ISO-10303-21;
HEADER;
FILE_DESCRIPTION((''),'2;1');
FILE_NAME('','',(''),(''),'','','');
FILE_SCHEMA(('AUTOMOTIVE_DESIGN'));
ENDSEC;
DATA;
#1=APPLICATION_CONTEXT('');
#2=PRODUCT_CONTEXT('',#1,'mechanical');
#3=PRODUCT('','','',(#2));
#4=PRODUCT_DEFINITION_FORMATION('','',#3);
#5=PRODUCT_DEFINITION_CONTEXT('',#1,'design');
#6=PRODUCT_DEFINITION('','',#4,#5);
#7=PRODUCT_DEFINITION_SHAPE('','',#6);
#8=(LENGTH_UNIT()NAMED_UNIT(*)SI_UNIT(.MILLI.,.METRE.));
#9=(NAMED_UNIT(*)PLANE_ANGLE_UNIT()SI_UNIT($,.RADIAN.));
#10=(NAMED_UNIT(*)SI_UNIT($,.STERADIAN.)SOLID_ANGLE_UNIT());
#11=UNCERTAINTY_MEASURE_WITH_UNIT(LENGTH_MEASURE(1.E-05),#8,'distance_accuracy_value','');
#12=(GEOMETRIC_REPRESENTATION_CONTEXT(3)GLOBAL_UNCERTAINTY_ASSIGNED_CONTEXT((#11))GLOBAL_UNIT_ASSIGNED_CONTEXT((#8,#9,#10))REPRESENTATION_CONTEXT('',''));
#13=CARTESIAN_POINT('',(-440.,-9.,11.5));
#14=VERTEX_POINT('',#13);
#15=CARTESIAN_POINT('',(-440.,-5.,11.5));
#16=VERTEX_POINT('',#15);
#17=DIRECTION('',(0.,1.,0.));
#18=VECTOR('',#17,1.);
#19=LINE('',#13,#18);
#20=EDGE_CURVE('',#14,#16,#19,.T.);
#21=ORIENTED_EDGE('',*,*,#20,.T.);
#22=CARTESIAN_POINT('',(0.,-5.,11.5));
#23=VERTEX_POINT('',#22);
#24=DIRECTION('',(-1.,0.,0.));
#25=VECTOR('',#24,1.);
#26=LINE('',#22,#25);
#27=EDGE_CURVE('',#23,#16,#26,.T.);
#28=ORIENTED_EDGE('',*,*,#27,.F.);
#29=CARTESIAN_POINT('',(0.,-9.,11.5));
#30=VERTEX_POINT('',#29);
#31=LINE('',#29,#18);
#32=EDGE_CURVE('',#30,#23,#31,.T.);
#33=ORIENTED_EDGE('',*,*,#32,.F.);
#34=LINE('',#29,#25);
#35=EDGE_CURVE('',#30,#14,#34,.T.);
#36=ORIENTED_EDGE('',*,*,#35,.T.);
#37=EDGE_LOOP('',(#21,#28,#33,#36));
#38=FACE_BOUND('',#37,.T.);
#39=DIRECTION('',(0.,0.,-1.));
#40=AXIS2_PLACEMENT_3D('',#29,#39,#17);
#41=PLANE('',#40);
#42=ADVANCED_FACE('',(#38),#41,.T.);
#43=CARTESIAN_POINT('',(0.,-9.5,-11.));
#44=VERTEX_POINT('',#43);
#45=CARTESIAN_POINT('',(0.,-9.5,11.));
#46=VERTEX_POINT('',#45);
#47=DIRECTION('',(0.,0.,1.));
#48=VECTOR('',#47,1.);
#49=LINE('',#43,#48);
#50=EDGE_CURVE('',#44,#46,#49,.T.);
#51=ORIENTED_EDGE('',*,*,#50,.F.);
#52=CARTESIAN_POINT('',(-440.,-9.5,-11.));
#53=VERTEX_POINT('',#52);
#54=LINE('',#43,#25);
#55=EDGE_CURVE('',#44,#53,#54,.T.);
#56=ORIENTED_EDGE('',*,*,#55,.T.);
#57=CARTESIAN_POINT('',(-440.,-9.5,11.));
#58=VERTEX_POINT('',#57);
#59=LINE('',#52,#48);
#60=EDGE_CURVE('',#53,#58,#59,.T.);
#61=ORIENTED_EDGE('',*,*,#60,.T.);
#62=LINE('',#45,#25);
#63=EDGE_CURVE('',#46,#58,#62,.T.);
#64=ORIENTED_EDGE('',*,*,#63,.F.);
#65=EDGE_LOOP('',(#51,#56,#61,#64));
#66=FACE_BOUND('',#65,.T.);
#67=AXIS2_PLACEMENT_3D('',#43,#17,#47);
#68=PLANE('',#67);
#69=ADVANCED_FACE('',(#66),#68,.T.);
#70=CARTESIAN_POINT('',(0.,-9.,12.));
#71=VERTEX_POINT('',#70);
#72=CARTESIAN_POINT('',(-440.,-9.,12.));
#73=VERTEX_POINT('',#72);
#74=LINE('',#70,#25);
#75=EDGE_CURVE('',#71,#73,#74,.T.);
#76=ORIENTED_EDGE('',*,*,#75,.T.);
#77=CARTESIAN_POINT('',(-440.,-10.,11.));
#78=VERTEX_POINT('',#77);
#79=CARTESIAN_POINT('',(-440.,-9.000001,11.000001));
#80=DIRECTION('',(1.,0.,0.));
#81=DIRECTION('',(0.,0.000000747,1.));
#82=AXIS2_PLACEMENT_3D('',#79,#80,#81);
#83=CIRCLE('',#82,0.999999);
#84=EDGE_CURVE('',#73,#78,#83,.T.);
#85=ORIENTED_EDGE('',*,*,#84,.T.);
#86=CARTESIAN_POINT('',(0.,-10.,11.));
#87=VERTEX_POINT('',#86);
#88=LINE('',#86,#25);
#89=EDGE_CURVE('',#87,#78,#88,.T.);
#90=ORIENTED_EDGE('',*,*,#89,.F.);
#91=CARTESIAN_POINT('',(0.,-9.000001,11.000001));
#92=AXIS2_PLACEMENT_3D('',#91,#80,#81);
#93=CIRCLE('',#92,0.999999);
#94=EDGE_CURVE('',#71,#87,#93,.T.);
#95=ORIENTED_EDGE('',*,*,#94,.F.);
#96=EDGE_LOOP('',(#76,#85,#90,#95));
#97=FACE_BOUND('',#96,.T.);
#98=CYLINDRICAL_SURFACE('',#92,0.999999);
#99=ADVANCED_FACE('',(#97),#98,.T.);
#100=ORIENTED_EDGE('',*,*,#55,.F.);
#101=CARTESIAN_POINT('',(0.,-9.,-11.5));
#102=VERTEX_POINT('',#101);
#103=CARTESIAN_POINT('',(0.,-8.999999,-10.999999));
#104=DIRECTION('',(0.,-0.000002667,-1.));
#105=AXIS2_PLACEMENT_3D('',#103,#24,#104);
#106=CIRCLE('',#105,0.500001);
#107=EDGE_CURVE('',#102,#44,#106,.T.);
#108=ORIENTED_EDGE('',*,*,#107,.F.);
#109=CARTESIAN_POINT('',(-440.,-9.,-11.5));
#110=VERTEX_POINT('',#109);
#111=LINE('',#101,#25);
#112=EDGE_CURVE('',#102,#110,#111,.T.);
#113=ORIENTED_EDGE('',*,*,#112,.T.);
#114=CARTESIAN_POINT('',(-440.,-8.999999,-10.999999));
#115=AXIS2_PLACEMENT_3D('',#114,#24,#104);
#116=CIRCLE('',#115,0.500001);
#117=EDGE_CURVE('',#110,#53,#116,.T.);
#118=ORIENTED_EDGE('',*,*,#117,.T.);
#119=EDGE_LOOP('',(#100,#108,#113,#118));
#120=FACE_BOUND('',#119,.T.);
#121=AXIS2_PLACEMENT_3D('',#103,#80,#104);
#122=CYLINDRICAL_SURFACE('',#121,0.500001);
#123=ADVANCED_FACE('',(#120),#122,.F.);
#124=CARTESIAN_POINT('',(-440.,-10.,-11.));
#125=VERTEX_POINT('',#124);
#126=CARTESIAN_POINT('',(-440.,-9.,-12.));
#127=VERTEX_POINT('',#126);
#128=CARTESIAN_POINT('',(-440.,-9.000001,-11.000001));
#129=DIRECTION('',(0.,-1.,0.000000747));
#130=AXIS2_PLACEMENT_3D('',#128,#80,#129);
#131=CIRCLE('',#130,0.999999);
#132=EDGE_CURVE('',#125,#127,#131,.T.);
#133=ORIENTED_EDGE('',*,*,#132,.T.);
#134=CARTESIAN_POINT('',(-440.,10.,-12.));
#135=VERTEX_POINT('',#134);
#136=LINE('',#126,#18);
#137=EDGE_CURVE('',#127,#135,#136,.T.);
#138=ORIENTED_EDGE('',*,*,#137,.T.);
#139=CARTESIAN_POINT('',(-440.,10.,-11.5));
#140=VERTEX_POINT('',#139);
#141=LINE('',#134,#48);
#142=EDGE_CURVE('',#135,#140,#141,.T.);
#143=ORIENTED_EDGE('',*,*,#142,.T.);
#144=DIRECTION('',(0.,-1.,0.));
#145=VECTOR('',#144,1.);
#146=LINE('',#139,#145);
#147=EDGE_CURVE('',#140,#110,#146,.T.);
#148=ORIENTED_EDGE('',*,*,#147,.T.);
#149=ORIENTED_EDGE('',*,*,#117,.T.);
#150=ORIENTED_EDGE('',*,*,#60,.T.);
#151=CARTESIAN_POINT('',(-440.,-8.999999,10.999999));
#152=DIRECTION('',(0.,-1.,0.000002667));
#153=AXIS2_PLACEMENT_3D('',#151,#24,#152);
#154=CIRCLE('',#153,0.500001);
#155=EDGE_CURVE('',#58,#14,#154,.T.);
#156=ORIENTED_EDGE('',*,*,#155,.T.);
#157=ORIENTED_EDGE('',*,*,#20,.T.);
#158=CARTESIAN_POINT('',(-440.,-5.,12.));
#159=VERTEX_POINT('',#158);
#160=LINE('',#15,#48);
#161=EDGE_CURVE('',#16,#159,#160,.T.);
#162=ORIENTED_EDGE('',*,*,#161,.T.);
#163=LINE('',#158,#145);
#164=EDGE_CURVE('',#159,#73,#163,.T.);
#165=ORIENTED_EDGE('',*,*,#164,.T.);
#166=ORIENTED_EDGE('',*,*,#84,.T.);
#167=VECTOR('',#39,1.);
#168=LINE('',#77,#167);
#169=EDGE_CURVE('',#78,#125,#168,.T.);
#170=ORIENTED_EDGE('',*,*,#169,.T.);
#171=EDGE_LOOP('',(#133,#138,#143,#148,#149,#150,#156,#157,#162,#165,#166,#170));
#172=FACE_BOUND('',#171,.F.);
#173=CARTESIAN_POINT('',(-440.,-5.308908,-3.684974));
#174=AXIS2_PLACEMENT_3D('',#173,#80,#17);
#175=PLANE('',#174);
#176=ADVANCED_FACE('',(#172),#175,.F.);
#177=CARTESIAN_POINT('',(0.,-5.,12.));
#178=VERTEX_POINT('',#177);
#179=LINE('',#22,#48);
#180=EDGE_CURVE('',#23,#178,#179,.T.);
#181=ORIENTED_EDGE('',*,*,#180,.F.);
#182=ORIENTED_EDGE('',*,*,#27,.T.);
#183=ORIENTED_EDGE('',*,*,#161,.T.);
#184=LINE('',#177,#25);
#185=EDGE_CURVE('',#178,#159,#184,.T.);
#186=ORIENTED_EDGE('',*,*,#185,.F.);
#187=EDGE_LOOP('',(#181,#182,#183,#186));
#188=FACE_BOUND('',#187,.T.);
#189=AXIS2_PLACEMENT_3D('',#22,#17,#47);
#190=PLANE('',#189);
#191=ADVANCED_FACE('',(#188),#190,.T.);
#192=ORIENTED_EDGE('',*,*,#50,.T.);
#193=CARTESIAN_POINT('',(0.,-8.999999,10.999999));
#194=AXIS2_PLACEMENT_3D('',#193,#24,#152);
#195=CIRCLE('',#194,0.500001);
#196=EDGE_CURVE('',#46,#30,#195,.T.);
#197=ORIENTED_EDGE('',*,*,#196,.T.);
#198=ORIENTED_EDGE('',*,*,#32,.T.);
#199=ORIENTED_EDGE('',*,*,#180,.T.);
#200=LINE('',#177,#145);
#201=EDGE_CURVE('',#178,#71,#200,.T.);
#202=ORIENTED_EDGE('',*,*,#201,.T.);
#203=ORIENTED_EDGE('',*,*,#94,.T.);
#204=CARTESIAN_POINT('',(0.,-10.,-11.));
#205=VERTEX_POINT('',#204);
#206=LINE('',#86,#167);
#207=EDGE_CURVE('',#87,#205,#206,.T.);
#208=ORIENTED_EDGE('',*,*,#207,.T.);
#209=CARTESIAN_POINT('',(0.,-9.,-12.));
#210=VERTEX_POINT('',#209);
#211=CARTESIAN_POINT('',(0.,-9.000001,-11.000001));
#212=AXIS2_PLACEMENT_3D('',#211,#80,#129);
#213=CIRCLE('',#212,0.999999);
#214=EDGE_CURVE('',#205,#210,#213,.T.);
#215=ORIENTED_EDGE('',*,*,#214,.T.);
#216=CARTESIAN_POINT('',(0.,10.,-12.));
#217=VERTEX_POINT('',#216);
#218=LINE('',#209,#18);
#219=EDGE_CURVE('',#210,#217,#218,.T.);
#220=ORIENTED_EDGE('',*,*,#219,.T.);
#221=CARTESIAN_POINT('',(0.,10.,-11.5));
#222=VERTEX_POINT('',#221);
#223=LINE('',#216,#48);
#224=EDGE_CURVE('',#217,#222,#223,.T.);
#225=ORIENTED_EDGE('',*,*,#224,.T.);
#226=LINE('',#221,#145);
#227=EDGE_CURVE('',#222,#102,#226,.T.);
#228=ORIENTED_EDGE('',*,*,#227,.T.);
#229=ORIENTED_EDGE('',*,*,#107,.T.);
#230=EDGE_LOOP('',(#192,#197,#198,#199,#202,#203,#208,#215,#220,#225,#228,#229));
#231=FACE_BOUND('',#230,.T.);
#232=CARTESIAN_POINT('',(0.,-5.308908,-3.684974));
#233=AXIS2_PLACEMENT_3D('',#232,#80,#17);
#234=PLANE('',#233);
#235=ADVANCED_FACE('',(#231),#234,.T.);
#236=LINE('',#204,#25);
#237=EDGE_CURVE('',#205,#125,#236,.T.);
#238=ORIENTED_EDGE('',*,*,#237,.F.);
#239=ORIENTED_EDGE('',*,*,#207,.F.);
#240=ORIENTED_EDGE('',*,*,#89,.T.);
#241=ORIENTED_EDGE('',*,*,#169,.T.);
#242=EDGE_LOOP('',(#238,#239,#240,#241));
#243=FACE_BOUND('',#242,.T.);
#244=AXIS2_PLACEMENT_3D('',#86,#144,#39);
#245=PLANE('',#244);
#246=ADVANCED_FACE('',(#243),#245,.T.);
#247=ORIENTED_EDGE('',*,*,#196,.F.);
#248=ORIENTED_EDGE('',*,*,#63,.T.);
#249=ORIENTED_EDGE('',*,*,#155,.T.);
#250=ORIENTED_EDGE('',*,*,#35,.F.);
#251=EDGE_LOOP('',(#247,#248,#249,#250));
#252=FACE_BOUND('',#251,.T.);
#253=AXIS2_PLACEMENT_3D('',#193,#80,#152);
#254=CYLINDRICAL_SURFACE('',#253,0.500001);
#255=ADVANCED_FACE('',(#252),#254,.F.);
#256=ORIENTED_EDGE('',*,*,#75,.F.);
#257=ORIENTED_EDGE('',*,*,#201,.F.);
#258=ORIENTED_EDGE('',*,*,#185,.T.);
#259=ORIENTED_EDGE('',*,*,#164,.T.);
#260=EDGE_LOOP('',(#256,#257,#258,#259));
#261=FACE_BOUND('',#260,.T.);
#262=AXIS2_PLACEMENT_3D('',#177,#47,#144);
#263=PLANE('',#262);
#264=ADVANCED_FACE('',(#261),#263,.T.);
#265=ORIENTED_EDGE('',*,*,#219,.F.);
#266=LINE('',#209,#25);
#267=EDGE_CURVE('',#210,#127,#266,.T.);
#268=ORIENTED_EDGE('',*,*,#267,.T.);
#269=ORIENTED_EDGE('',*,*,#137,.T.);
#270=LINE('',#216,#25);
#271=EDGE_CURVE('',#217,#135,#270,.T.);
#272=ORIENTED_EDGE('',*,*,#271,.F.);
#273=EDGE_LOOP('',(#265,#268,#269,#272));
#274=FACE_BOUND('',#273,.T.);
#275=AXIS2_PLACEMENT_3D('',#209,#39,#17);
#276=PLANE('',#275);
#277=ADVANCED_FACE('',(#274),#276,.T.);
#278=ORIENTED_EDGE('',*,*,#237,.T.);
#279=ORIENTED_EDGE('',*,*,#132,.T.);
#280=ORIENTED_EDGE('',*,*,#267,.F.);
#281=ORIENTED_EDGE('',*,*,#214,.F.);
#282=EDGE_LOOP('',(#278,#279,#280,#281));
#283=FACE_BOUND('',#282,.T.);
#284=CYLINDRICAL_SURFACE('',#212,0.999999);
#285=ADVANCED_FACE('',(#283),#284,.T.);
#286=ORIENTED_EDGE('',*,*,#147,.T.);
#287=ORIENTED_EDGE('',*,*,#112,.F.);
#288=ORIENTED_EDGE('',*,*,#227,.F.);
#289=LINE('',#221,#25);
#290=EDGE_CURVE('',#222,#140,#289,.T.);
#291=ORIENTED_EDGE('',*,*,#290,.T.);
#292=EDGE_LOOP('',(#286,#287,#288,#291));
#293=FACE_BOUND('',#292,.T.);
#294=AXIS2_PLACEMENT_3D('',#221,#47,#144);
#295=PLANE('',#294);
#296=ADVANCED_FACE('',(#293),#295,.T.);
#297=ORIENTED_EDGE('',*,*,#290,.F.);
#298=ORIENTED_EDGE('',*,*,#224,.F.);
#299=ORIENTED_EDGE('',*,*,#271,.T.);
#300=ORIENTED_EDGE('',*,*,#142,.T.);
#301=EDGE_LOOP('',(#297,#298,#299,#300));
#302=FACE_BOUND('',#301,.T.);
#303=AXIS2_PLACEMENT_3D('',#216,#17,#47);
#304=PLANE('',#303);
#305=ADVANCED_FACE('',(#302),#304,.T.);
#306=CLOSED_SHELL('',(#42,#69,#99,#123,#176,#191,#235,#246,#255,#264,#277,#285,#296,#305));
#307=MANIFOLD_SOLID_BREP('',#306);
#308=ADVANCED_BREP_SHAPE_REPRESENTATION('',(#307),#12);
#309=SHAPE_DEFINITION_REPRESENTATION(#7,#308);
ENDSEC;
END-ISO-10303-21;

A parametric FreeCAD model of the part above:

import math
import FreeCAD as App
import Part
import Sketcher
from FreeCAD import Vector

doc = App.newDocument("Part")
body = doc.addObject("PartDesign::Body", "Body")

sketch1 = doc.addObject("Sketcher::SketchObject", "Sketch")
body.addObject(sketch1)
sketch1.AttachmentSupport = (doc.YZ_Plane, [""])
sketch1.MapMode = "FlatFace"
sketch1.addGeometry(Part.LineSegment(Vector(-9, -12, 0), Vector(10, -12, 0)), False)
sketch1.addGeometry(Part.LineSegment(Vector(10, -12, 0), Vector(10, -11.5, 0)), False)
sketch1.addGeometry(Part.LineSegment(Vector(10, -11.5, 0), Vector(-9, -11.5, 0)), False)
sketch1.addGeometry(Part.ArcOfCircle(Part.Circle(Vector(-8.999999, -10.999999, 0), Vector(0, 0, 1), 0.500001), math.radians(-179.999847), math.radians(-90.000153)), False)
sketch1.addGeometry(Part.LineSegment(Vector(-9.5, -11, 0), Vector(-9.5, 11, 0)), False)
sketch1.addGeometry(Part.ArcOfCircle(Part.Circle(Vector(-8.999999, 10.999999, 0), Vector(0, 0, 1), 0.500001), math.radians(90.000153), math.radians(179.999847)), False)
sketch1.addGeometry(Part.LineSegment(Vector(-9, 11.5, 0), Vector(-5, 11.5, 0)), False)
sketch1.addGeometry(Part.LineSegment(Vector(-5, 11.5, 0), Vector(-5, 12, 0)), False)
sketch1.addGeometry(Part.LineSegment(Vector(-5, 12, 0), Vector(-9, 12, 0)), False)
sketch1.addGeometry(Part.ArcOfCircle(Part.Circle(Vector(-9.000001, 11.000001, 0), Vector(0, 0, 1), 0.999999), math.radians(89.999957), math.radians(180.000043)), False)
sketch1.addGeometry(Part.LineSegment(Vector(-10, 11, 0), Vector(-10, -11, 0)), False)
sketch1.addGeometry(Part.ArcOfCircle(Part.Circle(Vector(-9.000001, -11.000001, 0), Vector(0, 0, 1), 0.999999), math.radians(179.999957), math.radians(270.000043)), False)
sketch1.addConstraint(Sketcher.Constraint("Coincident", 0, 2, 1, 1))
sketch1.addConstraint(Sketcher.Constraint("Coincident", 1, 2, 2, 1))
sketch1.addConstraint(Sketcher.Constraint("Coincident", 2, 2, 3, 2))
sketch1.addConstraint(Sketcher.Constraint("Coincident", 3, 1, 4, 1))
sketch1.addConstraint(Sketcher.Constraint("Coincident", 4, 2, 5, 2))
sketch1.addConstraint(Sketcher.Constraint("Coincident", 5, 1, 6, 1))
sketch1.addConstraint(Sketcher.Constraint("Coincident", 6, 2, 7, 1))
sketch1.addConstraint(Sketcher.Constraint("Coincident", 7, 2, 8, 1))
sketch1.addConstraint(Sketcher.Constraint("Tangent", 8, 2, 9, 1))
sketch1.addConstraint(Sketcher.Constraint("Tangent", 9, 2, 10, 1))
sketch1.addConstraint(Sketcher.Constraint("Tangent", 10, 2, 11, 1))
sketch1.addConstraint(Sketcher.Constraint("Tangent", 11, 2, 0, 1))
sketch1.addConstraint(Sketcher.Constraint("Horizontal", 0))
sketch1.addConstraint(Sketcher.Constraint("Vertical", 1))
sketch1.addConstraint(Sketcher.Constraint("Horizontal", 2))
sketch1.addConstraint(Sketcher.Constraint("Vertical", 4))
sketch1.addConstraint(Sketcher.Constraint("Horizontal", 6))
sketch1.addConstraint(Sketcher.Constraint("Vertical", 7))
sketch1.addConstraint(Sketcher.Constraint("Horizontal", 8))
sketch1.addConstraint(Sketcher.Constraint("Vertical", 10))
sketch1.addConstraint(Sketcher.Constraint("Coincident", 9, 3, 5, 3))
sketch1.addConstraint(Sketcher.Constraint("Coincident", 11, 3, 3, 3))
sketch1.addConstraint(Sketcher.Constraint("Equal", 3, 5))
sketch1.addConstraint(Sketcher.Constraint("Symmetric", 2, 2, 5, 1, -1))
sketch1.addConstraint(Sketcher.Constraint("Horizontal", 11, 3, 3, 1))
sketch1.addConstraint(Sketcher.Constraint("Horizontal", 9, 3, 4, 2))
sketch1.addConstraint(Sketcher.Constraint("Vertical", 11, 3, 2, 2))
sketch1.addConstraint(Sketcher.Constraint("Radius", 9, 0.999999))
sketch1.addConstraint(Sketcher.Constraint("Radius", 3, 0.500001))
sketch1.addConstraint(Sketcher.Constraint("DistanceX", 0, 1, 0, 2, 19.0))
sketch1.addConstraint(Sketcher.Constraint("DistanceX", 6, 1, 6, 2, 4.0))
sketch1.addConstraint(Sketcher.Constraint("DistanceY", 4, 1, 4, 2, 22.0))
sketch1.addConstraint(Sketcher.Constraint("DistanceX", 3, 3, -1, 1, 8.999999))
pad1 = doc.addObject("PartDesign::Pad", "Pad")
body.addObject(pad1)
pad1.Profile = sketch1
pad1.Length = 440
pad1.Reversed = True

doc.recompute()
